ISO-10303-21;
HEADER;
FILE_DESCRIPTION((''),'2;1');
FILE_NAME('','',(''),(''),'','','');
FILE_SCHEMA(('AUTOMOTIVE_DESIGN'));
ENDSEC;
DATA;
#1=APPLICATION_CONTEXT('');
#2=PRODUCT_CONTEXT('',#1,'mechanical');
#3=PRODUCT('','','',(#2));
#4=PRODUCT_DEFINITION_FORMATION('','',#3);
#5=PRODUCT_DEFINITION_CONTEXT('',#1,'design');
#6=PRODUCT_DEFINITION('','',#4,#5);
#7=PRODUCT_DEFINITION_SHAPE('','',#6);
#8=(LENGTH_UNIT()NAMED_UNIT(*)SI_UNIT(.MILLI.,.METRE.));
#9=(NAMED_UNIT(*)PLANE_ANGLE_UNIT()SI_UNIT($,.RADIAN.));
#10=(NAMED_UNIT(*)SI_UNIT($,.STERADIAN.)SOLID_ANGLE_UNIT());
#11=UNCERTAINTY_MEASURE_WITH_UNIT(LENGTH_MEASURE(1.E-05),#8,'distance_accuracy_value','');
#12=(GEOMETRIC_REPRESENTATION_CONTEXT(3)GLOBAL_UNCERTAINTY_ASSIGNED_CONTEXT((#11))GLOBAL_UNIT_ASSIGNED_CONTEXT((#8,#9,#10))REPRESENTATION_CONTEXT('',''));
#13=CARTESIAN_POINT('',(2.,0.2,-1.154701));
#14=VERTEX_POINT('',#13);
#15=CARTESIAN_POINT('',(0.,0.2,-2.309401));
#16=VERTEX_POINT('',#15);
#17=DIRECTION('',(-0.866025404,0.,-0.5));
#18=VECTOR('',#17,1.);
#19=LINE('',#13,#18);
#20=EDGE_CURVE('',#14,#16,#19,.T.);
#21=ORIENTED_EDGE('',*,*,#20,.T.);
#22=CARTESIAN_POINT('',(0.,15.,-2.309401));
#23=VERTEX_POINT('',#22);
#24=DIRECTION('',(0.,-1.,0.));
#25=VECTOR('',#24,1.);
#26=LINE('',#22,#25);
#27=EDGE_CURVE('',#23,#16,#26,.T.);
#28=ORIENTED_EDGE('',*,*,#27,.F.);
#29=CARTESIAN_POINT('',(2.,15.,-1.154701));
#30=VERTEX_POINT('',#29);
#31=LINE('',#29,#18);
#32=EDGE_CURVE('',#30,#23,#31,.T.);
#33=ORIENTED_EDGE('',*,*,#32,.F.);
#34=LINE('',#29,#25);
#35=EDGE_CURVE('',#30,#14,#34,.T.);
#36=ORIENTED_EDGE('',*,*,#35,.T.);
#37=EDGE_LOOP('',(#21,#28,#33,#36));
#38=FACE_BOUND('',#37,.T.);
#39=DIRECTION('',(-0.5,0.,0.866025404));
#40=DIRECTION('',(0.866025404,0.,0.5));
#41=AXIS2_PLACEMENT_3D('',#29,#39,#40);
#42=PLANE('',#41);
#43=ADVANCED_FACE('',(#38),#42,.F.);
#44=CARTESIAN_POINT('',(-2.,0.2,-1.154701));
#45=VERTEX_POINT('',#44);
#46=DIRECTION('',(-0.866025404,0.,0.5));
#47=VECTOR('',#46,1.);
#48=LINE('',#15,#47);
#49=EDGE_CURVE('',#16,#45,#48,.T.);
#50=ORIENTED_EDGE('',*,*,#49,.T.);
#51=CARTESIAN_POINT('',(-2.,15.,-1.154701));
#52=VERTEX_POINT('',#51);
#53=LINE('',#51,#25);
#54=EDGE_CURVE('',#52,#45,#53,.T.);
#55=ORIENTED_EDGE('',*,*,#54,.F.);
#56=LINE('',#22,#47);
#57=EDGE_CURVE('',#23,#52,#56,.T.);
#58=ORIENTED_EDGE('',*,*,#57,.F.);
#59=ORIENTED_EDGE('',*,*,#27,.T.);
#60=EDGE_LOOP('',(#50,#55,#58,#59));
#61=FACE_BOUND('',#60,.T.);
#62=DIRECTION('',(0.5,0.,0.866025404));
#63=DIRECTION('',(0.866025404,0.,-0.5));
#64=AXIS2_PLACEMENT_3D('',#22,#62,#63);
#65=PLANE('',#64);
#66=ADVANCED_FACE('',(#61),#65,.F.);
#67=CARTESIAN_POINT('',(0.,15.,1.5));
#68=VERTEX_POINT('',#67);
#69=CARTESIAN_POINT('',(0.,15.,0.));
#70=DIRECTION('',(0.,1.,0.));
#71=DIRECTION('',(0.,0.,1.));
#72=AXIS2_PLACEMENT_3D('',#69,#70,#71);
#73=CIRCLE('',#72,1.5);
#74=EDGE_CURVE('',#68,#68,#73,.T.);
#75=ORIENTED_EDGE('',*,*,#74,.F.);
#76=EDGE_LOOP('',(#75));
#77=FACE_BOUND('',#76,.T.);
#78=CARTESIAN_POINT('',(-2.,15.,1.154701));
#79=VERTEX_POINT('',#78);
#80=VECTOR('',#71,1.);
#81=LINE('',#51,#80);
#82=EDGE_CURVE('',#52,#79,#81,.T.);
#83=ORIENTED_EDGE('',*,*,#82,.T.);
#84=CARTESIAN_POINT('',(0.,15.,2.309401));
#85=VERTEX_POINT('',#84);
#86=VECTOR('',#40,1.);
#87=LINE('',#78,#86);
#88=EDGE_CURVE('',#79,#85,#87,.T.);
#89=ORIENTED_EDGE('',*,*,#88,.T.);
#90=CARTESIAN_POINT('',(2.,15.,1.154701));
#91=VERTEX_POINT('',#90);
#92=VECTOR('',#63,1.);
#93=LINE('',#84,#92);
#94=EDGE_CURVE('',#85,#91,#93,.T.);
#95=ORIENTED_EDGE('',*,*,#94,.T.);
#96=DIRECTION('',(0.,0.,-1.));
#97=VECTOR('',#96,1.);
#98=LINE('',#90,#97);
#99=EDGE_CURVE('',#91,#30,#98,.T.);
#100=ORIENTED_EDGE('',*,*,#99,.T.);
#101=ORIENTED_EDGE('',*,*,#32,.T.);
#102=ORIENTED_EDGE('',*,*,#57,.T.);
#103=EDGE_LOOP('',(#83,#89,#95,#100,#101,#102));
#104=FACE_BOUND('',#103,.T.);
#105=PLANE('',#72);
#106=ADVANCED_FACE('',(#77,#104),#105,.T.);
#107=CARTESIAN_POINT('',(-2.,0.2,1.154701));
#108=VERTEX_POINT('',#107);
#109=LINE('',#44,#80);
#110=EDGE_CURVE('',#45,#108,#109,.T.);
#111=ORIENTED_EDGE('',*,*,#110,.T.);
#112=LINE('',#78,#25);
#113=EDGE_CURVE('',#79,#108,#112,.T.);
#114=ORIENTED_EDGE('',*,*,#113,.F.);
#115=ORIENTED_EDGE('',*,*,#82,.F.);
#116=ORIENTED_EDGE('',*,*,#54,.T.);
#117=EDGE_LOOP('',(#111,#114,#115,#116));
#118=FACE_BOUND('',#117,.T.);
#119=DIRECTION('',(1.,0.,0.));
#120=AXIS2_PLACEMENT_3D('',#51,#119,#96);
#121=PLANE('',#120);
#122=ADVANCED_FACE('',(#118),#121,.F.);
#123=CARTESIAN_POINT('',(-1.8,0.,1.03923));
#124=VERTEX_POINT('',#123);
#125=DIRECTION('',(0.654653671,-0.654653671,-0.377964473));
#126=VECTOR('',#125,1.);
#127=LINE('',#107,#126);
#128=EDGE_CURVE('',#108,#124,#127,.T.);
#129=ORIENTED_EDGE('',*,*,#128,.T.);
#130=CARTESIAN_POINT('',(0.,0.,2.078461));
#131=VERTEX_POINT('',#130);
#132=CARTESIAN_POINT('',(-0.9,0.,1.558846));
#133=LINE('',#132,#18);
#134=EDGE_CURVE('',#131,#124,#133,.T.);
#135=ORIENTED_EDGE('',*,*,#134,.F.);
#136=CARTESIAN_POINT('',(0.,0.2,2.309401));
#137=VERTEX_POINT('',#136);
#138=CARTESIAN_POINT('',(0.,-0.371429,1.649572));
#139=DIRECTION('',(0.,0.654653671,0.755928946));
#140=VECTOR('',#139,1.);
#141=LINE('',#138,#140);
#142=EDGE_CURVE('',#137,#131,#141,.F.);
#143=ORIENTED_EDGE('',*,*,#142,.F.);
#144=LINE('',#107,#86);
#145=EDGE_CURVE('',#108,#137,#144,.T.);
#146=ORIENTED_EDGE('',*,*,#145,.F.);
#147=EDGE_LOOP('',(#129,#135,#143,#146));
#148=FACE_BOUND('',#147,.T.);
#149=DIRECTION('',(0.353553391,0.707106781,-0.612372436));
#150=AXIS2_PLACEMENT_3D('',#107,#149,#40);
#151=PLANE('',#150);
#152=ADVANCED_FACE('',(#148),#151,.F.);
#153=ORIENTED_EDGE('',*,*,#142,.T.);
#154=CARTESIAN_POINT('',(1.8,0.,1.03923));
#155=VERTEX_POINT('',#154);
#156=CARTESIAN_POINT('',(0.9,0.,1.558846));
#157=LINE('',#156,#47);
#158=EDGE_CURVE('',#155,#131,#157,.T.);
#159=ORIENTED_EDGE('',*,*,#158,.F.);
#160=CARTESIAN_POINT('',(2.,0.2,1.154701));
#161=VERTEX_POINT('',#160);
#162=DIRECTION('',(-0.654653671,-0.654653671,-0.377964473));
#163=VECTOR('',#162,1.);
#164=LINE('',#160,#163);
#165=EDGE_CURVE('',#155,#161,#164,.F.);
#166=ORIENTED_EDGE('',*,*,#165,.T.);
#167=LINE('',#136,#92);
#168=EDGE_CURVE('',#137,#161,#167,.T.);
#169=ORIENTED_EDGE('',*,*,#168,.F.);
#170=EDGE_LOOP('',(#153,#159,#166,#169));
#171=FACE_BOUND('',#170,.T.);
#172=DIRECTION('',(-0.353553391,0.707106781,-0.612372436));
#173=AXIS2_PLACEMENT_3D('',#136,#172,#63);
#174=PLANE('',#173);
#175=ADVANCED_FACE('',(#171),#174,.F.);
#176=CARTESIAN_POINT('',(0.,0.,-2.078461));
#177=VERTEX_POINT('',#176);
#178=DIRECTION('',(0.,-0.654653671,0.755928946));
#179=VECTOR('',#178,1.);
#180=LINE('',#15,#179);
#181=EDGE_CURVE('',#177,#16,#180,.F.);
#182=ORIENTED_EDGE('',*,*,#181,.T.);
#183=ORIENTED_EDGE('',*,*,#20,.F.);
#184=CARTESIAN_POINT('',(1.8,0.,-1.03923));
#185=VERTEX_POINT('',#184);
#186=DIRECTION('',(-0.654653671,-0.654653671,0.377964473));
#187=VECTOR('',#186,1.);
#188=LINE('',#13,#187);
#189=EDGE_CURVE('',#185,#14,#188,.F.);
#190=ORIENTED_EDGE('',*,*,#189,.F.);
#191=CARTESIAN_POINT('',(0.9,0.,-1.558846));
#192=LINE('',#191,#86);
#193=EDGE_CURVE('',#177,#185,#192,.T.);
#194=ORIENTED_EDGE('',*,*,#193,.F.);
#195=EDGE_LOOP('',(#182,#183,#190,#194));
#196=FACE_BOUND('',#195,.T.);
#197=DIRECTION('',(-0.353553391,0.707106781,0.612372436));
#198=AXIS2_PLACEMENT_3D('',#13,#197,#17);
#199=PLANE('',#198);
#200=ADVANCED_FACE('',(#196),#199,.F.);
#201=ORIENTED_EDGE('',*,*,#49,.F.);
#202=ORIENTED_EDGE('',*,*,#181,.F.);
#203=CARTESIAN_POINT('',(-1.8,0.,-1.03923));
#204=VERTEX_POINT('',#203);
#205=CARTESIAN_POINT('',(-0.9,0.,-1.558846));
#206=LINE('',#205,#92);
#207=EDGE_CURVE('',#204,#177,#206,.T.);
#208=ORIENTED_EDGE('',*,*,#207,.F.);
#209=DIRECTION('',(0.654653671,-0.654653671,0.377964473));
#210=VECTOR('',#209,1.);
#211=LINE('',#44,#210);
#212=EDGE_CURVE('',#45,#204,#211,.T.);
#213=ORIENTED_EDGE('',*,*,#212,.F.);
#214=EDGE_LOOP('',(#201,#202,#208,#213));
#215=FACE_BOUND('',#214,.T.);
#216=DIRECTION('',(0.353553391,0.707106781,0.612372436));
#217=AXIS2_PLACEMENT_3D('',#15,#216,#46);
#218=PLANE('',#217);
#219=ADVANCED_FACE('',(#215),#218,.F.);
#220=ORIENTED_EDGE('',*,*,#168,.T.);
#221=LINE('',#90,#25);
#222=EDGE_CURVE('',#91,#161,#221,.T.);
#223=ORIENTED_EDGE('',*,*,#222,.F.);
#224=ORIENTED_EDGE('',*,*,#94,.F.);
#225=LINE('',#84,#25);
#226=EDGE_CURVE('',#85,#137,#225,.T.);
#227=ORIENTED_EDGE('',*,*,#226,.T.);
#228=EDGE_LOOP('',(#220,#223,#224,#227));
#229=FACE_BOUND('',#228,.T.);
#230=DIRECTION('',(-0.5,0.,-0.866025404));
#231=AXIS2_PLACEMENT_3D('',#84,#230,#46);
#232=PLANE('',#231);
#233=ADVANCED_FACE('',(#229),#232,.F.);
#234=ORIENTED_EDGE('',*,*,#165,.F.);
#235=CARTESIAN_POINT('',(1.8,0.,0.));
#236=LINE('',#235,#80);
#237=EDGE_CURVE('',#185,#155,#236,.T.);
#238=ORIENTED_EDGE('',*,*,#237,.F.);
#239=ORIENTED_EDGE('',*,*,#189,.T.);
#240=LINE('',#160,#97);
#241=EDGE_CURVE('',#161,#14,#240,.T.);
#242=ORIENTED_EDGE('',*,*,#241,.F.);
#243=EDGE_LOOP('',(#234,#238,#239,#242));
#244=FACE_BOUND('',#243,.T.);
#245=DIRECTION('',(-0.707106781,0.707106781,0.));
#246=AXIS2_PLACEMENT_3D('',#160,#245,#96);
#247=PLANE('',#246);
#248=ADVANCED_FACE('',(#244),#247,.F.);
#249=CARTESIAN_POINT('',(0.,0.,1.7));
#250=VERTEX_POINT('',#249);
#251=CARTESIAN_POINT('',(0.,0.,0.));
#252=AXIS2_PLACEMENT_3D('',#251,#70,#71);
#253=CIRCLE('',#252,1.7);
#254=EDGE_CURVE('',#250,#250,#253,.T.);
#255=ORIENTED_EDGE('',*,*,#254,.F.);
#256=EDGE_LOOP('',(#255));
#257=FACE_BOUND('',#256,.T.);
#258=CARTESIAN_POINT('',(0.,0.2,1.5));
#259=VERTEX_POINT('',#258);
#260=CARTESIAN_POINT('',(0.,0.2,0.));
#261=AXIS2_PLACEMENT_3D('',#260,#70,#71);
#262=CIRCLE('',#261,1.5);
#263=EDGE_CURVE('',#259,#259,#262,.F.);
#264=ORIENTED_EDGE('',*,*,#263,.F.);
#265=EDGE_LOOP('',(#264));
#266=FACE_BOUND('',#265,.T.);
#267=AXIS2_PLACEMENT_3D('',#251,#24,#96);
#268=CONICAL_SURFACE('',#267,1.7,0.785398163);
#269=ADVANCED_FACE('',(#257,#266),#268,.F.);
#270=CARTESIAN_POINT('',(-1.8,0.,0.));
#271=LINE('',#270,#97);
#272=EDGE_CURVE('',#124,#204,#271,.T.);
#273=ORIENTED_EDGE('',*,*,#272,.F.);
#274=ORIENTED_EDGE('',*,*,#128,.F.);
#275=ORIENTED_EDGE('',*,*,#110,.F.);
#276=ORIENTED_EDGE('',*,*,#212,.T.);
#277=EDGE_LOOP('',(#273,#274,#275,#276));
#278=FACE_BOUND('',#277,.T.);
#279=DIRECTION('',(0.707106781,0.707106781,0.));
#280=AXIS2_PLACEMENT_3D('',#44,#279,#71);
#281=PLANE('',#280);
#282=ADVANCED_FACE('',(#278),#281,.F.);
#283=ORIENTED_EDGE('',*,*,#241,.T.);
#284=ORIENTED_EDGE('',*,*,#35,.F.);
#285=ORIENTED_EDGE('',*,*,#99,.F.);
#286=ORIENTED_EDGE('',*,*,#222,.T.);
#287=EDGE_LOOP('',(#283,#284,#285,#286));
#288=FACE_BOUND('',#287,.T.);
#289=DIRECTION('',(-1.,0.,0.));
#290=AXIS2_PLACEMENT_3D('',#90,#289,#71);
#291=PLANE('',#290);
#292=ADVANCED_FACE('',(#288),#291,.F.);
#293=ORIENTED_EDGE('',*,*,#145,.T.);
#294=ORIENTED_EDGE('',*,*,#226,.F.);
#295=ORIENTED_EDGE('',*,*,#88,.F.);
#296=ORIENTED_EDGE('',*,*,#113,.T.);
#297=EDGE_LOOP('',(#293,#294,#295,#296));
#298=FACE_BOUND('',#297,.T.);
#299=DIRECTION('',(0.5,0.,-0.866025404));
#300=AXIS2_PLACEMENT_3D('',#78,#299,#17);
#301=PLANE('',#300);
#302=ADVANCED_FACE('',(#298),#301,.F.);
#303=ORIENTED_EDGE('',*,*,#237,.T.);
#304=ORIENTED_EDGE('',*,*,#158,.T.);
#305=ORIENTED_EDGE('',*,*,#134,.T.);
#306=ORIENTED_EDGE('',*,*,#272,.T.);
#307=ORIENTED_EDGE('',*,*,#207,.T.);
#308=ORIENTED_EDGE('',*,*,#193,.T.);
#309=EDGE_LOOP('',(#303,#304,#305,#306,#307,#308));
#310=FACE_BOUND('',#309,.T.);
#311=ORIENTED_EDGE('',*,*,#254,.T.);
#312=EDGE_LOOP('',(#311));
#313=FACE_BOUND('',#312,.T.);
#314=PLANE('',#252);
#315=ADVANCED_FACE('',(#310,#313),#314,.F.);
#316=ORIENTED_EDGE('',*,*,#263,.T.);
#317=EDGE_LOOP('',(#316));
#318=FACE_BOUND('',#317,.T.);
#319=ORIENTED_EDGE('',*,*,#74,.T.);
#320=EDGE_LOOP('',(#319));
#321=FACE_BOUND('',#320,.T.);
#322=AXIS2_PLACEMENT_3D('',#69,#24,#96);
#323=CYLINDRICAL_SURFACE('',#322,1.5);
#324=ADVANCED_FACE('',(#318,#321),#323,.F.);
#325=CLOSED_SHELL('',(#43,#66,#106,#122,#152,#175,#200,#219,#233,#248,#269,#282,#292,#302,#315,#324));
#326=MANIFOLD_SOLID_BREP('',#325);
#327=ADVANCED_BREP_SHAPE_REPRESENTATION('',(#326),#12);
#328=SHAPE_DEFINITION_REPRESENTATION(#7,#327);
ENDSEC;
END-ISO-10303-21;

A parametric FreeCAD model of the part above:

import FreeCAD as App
import Part
import Sketcher
Q = App.Units.Quantity


def edges_at(feature, points):
    """Names of the edges that pass closest to the given points."""
    edges = feature.Shape.Edges
    near = lambda p: min(range(len(edges)), key=lambda i: edges[i].distToShape(Part.Vertex(*p))[0])
    return sorted({f"Edge{near(p) + 1}" for p in points})


def add_polygon(sketch, points):
    """Adds a closed chain of lines whose ends are joined by coincident constraints."""
    first, n = sketch.GeometryCount, len(points)
    for a, b in zip(points, points[1:] + points[:1]):
        sketch.addGeometry(Part.LineSegment(App.Vector(*a, 0), App.Vector(*b, 0)), False)
    for i in range(n):
        sketch.addConstraint(Sketcher.Constraint("Coincident", first + i, 2, first + (i + 1) % n, 1))

doc = App.newDocument("Part")
body = doc.addObject("PartDesign::Body", "Body")

# Sketch on XZ plane
sketch1 = body.newObject("Sketcher::SketchObject", "Sketch")
sketch1.AttachmentSupport = (doc.getObject("XZ_Plane"), [""])
sketch1.MapMode = "FlatFace"
add_polygon(sketch1, [(0, 2.3), (2, 1.2), (2, -1.2), (0, -2.3), (-2, -1.2), (-2, 1.2)])  # lines 0-5
sketch1.addGeometry(Part.Circle(App.Vector(0, 0, 0), App.Vector(0, 0, 1), 1.5), False)  # 6
sketch1.addConstraint([
    Sketcher.Constraint("Vertical", 1),
    Sketcher.Constraint("Vertical", 4),
    Sketcher.Constraint("Coincident", 6, 3, -1, 1),
    Sketcher.Constraint("Symmetric", 0, 2, 3, 2, -1, 1),
    Sketcher.Constraint("Symmetric", 2, 2, 5, 2, -1, 1),
    Sketcher.Constraint("PointOnObject", 2, 2, -2),
    Sketcher.Constraint("Parallel", 2, 5),
    Sketcher.Constraint("Horizontal", 1, 2, 3, 2),
    Sketcher.Constraint("Diameter", 6, Q("3 mm")),
    Sketcher.Constraint("Angle", 0, Q("-30 deg")),
    Sketcher.Constraint("DistanceX", -1, 1, 0, 2, Q("2 mm")),
    Sketcher.Constraint("DistanceY", 1, 2, 1, 1, Q("2.309401 mm")),
])
pad1 = body.newObject("PartDesign::Pad", "Pad")
pad1.Profile = sketch1
pad1.Length = 15
pad1.Reversed = True
doc.recompute()

chamfer = body.newObject("PartDesign::Chamfer", "Chamfer")
chamfer.Base = (pad1, edges_at(pad1, [
    (0, 0, -1.5),
    (-2, 0, 0),
    (-1, 0, -1.732),
    (1, 0, -1.732),
    (2, 0, 0),
    (1, 0, 1.732),
    (-1, 0, 1.732),
]))
chamfer.Size = 0.2

doc.recompute()
